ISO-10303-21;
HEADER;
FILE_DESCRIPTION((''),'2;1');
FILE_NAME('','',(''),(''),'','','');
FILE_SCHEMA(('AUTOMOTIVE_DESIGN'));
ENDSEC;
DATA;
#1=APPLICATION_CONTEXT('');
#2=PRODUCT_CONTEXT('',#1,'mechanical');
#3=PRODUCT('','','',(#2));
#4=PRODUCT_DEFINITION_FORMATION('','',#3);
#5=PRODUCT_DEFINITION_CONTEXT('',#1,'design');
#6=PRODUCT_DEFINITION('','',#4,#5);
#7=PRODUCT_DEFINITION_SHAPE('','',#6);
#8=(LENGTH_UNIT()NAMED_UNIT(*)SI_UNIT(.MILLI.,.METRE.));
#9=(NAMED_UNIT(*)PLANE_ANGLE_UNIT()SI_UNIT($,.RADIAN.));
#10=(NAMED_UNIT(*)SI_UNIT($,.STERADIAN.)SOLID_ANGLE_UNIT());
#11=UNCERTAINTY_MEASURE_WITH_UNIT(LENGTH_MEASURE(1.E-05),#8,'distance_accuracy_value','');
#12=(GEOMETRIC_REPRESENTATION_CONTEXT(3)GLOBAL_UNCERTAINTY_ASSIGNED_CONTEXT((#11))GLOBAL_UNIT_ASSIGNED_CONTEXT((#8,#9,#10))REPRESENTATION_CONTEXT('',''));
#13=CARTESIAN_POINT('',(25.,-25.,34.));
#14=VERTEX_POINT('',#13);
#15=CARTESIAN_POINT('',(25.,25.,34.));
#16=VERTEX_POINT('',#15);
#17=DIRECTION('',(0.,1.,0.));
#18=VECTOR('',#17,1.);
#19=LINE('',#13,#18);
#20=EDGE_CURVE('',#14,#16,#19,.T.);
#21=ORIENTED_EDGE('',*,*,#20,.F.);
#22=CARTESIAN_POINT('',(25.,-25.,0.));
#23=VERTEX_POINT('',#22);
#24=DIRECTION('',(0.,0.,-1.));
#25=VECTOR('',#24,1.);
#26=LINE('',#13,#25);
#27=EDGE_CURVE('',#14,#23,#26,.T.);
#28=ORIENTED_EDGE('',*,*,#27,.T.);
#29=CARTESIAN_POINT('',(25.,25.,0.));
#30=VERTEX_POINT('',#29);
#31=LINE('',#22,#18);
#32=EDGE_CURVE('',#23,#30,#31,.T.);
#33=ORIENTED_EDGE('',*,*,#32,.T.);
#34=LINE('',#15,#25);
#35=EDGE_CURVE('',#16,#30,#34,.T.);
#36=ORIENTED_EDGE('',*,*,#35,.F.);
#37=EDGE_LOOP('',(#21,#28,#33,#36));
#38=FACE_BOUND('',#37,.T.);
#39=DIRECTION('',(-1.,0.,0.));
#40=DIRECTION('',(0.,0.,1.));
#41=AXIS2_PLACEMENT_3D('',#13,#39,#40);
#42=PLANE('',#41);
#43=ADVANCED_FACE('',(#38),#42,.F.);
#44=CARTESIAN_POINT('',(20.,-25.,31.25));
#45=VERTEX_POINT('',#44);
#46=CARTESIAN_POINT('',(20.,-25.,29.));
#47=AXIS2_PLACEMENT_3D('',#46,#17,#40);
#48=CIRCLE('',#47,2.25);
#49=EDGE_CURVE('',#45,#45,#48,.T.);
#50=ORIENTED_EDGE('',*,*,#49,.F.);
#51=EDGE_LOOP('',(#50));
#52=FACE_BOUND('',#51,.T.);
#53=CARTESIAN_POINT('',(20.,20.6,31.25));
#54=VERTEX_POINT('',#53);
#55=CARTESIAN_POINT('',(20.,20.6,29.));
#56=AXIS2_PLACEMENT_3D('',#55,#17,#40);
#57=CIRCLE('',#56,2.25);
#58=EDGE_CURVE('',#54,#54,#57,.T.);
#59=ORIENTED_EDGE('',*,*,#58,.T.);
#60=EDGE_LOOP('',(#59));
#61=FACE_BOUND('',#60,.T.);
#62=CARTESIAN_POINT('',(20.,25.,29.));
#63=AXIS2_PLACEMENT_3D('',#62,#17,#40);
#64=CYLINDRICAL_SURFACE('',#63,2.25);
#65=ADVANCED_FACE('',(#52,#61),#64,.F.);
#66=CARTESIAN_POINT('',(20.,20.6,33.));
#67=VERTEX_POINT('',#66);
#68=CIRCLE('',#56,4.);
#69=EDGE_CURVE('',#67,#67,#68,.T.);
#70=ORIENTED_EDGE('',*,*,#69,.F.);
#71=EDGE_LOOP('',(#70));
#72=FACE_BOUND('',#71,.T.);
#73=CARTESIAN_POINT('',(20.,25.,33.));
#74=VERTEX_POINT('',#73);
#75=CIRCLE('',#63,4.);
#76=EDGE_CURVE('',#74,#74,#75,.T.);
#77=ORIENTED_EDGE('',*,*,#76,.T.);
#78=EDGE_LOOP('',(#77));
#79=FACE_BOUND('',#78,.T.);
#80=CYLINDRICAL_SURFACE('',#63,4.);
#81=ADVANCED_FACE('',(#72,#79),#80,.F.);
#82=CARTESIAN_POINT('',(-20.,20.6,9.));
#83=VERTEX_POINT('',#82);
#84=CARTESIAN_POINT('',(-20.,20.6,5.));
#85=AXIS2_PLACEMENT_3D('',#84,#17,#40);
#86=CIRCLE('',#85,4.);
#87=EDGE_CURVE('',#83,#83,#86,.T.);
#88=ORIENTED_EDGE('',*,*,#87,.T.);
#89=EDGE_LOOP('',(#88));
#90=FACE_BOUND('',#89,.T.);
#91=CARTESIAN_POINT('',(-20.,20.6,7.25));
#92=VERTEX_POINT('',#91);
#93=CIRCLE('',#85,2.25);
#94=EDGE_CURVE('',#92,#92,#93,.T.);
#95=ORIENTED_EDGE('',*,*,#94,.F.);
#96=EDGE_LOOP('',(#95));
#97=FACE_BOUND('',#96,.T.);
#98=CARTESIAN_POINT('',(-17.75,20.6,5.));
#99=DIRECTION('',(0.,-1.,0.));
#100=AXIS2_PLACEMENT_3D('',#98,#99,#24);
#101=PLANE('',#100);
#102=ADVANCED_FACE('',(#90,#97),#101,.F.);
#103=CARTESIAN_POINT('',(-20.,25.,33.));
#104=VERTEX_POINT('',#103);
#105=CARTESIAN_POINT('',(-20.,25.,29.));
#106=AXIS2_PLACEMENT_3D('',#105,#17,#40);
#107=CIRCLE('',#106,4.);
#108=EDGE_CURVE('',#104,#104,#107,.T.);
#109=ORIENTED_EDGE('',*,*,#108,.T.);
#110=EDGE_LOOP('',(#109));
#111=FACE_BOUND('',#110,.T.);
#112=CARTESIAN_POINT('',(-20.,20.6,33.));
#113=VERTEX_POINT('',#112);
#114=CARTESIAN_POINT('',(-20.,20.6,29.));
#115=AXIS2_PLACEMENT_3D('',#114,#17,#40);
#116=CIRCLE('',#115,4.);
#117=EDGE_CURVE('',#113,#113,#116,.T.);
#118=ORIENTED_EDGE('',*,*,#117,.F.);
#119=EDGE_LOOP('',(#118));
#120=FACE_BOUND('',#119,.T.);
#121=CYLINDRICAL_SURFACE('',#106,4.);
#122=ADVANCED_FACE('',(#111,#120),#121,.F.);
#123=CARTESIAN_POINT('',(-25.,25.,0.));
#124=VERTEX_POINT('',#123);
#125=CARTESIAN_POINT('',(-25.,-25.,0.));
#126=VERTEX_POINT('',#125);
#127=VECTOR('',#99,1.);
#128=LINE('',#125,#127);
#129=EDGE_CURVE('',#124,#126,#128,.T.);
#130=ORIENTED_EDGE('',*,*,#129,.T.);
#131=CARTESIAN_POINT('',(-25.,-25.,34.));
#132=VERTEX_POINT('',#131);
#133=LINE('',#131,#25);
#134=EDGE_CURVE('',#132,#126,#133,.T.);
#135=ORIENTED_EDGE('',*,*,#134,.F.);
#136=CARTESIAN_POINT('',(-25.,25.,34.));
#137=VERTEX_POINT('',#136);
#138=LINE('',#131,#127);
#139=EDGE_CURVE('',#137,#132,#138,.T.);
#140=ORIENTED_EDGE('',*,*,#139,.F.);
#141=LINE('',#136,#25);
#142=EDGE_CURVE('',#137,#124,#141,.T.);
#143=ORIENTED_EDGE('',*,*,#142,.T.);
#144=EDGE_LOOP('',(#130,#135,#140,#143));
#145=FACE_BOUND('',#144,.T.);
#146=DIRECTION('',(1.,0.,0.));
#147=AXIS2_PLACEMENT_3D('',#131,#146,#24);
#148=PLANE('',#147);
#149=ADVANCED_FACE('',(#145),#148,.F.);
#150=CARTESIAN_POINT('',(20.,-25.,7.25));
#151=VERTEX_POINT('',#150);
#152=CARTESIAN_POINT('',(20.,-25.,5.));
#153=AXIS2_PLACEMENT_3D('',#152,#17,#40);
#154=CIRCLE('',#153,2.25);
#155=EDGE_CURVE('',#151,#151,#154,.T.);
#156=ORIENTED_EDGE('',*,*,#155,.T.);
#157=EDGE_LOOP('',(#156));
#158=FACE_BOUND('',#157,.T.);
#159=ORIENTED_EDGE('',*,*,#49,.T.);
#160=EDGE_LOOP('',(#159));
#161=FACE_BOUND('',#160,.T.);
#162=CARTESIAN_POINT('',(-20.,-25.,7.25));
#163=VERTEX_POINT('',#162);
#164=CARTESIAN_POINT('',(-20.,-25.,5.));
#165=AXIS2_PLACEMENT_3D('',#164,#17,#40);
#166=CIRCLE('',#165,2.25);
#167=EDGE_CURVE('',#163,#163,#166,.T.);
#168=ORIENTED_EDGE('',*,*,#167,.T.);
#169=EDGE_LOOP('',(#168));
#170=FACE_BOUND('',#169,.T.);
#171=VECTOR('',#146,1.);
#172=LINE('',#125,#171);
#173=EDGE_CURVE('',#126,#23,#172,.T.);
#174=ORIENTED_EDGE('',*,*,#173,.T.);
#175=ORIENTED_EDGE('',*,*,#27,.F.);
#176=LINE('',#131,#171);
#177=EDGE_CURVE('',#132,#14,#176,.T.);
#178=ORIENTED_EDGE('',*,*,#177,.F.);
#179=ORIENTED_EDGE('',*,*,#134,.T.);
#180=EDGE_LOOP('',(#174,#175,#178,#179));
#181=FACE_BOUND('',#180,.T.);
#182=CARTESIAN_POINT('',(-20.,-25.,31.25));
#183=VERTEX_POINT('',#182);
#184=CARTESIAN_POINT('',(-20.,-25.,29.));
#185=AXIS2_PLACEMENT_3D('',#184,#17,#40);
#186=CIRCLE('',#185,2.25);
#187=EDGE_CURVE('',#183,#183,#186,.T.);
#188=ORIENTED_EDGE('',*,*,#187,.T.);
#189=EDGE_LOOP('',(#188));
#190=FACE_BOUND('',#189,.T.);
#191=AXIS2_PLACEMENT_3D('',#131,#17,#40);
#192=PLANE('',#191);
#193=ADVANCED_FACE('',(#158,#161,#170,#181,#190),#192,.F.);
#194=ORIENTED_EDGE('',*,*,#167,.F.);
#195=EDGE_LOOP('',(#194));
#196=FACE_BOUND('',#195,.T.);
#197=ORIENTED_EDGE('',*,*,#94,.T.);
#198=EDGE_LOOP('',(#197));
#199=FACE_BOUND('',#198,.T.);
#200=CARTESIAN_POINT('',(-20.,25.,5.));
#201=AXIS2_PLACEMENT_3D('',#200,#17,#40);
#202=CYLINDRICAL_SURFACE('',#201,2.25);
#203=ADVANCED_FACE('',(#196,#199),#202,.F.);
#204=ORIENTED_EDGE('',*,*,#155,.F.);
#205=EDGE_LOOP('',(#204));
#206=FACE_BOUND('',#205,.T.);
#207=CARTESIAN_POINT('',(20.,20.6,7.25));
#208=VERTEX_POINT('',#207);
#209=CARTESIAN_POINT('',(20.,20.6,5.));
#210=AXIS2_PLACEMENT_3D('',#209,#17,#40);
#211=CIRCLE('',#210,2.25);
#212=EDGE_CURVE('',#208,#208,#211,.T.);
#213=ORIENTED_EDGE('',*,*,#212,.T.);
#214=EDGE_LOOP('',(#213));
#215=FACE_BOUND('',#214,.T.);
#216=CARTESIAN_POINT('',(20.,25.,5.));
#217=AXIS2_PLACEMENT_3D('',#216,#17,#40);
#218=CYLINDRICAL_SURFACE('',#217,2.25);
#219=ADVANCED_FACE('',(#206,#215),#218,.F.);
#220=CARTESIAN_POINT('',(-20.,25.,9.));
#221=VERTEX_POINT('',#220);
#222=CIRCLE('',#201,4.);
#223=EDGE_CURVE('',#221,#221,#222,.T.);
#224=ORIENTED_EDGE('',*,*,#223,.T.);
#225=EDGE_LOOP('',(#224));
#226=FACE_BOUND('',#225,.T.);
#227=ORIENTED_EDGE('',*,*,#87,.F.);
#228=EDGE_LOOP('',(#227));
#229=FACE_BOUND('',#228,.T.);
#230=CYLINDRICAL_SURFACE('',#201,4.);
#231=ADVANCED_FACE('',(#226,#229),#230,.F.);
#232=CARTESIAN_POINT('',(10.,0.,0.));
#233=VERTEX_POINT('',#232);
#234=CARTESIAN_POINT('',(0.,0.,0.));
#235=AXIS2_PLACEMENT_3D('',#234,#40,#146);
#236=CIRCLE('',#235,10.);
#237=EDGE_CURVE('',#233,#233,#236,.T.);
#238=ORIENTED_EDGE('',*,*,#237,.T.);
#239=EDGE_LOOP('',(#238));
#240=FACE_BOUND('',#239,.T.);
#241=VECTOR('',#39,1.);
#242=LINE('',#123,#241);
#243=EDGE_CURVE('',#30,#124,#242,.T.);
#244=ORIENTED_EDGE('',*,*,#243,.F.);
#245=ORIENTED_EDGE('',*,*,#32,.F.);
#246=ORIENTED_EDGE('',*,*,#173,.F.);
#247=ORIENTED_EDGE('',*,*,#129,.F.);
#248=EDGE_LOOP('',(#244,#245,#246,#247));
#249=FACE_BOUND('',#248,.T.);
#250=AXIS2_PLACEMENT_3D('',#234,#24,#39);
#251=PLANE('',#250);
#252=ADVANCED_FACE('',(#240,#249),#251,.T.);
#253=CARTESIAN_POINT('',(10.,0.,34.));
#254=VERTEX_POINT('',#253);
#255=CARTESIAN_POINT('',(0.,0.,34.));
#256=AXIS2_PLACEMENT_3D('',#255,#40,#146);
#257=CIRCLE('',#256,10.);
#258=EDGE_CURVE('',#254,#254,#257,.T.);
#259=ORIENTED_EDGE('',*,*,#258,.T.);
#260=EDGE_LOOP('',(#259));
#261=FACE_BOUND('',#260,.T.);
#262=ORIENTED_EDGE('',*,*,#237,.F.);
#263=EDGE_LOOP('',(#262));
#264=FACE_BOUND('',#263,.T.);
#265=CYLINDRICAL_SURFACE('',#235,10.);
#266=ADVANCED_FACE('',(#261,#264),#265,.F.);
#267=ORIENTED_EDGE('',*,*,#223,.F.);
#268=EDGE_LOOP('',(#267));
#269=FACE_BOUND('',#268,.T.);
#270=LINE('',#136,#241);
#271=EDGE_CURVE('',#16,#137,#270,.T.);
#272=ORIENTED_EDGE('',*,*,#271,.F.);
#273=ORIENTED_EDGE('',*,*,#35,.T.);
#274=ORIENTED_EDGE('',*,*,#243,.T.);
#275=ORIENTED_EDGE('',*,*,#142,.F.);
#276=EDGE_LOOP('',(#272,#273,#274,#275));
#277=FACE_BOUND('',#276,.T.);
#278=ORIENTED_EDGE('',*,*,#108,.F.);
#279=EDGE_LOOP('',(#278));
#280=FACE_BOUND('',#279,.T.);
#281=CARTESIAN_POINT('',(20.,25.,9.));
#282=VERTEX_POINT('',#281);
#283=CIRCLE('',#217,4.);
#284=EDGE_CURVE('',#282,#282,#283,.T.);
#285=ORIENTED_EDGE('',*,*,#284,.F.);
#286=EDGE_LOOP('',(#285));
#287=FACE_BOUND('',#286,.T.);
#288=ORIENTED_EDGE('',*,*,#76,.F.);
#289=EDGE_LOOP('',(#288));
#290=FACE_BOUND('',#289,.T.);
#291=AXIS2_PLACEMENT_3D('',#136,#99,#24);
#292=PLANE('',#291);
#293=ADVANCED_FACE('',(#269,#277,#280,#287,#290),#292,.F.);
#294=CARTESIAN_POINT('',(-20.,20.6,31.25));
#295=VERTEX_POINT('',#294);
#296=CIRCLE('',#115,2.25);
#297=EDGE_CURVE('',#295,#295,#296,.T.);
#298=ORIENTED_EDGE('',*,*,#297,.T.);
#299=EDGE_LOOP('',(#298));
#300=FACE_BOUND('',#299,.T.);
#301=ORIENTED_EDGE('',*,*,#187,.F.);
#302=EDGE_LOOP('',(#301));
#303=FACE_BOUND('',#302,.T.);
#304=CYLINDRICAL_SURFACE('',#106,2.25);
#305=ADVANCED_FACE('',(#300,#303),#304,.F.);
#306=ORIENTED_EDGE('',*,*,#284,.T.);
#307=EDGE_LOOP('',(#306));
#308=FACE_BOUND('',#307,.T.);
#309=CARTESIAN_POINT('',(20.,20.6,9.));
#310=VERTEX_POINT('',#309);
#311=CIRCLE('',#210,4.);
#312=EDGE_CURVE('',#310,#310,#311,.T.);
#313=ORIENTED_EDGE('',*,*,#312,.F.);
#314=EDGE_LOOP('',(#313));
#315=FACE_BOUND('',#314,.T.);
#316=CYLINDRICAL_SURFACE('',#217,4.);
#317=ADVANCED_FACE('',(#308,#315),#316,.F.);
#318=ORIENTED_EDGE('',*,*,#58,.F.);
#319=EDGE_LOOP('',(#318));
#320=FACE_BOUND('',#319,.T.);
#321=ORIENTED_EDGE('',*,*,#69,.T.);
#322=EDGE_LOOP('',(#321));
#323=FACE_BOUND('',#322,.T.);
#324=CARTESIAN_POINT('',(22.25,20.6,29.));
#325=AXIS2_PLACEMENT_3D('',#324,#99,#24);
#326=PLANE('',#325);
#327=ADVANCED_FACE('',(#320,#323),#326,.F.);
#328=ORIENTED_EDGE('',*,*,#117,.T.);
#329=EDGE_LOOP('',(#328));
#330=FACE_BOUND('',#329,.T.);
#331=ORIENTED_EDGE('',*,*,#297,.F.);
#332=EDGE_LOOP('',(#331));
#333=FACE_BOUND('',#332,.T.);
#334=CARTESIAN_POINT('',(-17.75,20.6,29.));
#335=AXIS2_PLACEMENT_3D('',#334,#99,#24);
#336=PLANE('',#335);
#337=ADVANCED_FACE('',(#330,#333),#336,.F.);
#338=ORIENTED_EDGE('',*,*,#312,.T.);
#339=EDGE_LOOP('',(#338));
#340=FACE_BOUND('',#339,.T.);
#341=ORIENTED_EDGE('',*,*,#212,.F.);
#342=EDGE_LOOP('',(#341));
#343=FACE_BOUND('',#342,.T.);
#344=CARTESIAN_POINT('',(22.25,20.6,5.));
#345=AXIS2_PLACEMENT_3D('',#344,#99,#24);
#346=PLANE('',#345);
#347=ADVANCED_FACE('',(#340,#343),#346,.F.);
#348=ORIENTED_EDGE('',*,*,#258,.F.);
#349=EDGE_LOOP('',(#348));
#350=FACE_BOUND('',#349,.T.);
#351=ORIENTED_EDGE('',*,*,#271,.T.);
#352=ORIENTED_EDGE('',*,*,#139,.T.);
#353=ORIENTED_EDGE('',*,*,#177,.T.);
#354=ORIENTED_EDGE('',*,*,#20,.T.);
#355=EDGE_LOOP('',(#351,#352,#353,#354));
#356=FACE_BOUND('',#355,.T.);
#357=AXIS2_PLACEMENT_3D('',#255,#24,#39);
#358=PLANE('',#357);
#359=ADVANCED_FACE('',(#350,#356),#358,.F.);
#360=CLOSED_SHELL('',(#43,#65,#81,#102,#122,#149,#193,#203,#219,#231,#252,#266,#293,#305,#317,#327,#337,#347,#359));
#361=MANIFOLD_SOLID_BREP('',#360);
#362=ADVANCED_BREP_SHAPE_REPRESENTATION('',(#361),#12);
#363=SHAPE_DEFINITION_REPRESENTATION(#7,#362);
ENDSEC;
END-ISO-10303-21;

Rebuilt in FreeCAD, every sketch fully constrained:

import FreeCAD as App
import Part
import Sketcher

V = App.Vector
Q = App.Units.Quantity


def add_polygon(sketch, points):
    """Adds a closed chain of lines whose ends are joined by coincident constraints."""
    first, n = sketch.GeometryCount, len(points)
    for a, b in zip(points, points[1:] + points[:1]):
        sketch.addGeometry(Part.LineSegment(App.Vector(*a, 0), App.Vector(*b, 0)), False)
    for i in range(n):
        sketch.addConstraint(Sketcher.Constraint("Coincident", first + i, 2, first + (i + 1) % n, 1))

doc = App.newDocument("Part")
params = doc.addObject("Spreadsheet::Sheet", "Params")
for row, (alias, value) in enumerate([
    ("sketch1_width", "50 mm"),
    ("pad1_length", "34 mm"),
    ("sketch2_diameter", "4.5 mm"),
    ("hole_diameter", "4.5 mm"),
    ("hole_cbore_diameter", "8 mm"),
    ("hole_cbore_depth", "4.4 mm"),
    ("sketch3_diameter", "20 mm"),
], start=1):
    params.set(f"A{row}", alias)
    params.set(f"B{row}", "=" + value)
    params.setAlias(f"B{row}", alias)

body = doc.addObject("PartDesign::Body", "Body")

# Sketch on XY plane
sketch1 = body.newObject("Sketcher::SketchObject", "Sketch")
sketch1.AttachmentSupport = (doc.getObject("XY_Plane"), [""])
sketch1.MapMode = "FlatFace"
add_polygon(sketch1, [(-25, 25), (-25, -25), (25, -25), (25, 25)])  # lines 0-3
sketch1.addConstraint(Sketcher.Constraint("Vertical", 0))
sketch1.addConstraint(Sketcher.Constraint("Horizontal", 1))
sketch1.addConstraint(Sketcher.Constraint("Vertical", 2))
sketch1.addConstraint(Sketcher.Constraint("Horizontal", 3))
sketch1.addConstraint(Sketcher.Constraint("Symmetric", 0, 2, 2, 2, -1, 1))
sketch1.addConstraint(Sketcher.Constraint("Equal", 3, 0))
sketch1.addConstraint(Sketcher.Constraint("DistanceX", 1, 1, 1, 2, Q("50 mm")))
sketch1.setExpression("Constraints[10]", "Params.sketch1_width")
pad1 = body.newObject("PartDesign::Pad", "Pad")
pad1.Profile = sketch1
pad1.setExpression("Length", "Params.pad1_length")

# Sketch on XZ plane
sketch2 = body.newObject("Sketcher::SketchObject", "Sketch001")
sketch2.AttachmentSupport = (doc.getObject("XZ_Plane"), [""])
sketch2.MapMode = "FlatFace"
sketch2.AttachmentOffset = App.Placement(V(0, 0, -25), App.Rotation())
sketch2.addGeometry(Part.Circle(V(-20, 5, 0), V(0, 0, 1), 2.2), False)
sketch2.addGeometry(Part.Circle(V(20, 5, 0), V(0, 0, 1), 2.2), False)
sketch2.addGeometry(Part.Circle(V(20, 29, 0), V(0, 0, 1), 2.2), False)
sketch2.addGeometry(Part.Circle(V(-20, 29, 0), V(0, 0, 1), 2.2), False)
sketch2.addConstraint(Sketcher.Constraint("Equal", 0, 1))
sketch2.addConstraint(Sketcher.Constraint("Equal", 1, 2))
sketch2.addConstraint(Sketcher.Constraint("Equal", 2, 3))
sketch2.addConstraint(Sketcher.Constraint("Symmetric", 0, 3, 1, 3, -2))
sketch2.addConstraint(Sketcher.Constraint("Symmetric", 2, 3, 3, 3, -2))
sketch2.addConstraint(Sketcher.Constraint("Vertical", 1, 3, 2, 3))
sketch2.addConstraint(Sketcher.Constraint("Diameter", 0, Q("4.5 mm")))
sketch2.addConstraint(Sketcher.Constraint("DistanceX", 0, 3, -1, 1, Q("20 mm")))
sketch2.addConstraint(Sketcher.Constraint("DistanceY", -1, 1, 0, 3, Q("5 mm")))
sketch2.addConstraint(Sketcher.Constraint("DistanceY", -1, 1, 2, 3, Q("29 mm")))
sketch2.setExpression("Constraints[6]", "Params.sketch2_diameter")
doc.recompute()
hole = body.newObject("PartDesign::Hole", "Hole")
hole.Profile = sketch2
hole.ThreadType = "None"
hole.setExpression("Diameter", "Params.hole_diameter")
hole.DepthType = "ThroughAll"
hole.HoleCutType = "Counterbore"
hole.setExpression("HoleCutDiameter", "Params.hole_cbore_diameter")
hole.setExpression("HoleCutDepth", "Params.hole_cbore_depth")
hole.Reversed = True

# Sketch on XY plane
sketch3 = body.newObject("Sketcher::SketchObject", "Sketch002")
sketch3.AttachmentSupport = (doc.getObject("XY_Plane"), [""])
sketch3.MapMode = "FlatFace"
sketch3.AttachmentOffset = App.Placement(V(0, 0, 34), App.Rotation())
sketch3.addGeometry(Part.Circle(V(0, 0, 0), V(0, 0, 1), 10), False)
sketch3.addConstraint(Sketcher.Constraint("Coincident", 0, 3, -1, 1))
sketch3.addConstraint(Sketcher.Constraint("Diameter", 0, Q("20 mm")))
sketch3.setExpression("Constraints[1]", "Params.sketch3_diameter")
pocket1 = body.newObject("PartDesign::Pocket", "Pocket")
pocket1.Profile = sketch3
pocket1.Type = "ThroughAll"

doc.recompute()
